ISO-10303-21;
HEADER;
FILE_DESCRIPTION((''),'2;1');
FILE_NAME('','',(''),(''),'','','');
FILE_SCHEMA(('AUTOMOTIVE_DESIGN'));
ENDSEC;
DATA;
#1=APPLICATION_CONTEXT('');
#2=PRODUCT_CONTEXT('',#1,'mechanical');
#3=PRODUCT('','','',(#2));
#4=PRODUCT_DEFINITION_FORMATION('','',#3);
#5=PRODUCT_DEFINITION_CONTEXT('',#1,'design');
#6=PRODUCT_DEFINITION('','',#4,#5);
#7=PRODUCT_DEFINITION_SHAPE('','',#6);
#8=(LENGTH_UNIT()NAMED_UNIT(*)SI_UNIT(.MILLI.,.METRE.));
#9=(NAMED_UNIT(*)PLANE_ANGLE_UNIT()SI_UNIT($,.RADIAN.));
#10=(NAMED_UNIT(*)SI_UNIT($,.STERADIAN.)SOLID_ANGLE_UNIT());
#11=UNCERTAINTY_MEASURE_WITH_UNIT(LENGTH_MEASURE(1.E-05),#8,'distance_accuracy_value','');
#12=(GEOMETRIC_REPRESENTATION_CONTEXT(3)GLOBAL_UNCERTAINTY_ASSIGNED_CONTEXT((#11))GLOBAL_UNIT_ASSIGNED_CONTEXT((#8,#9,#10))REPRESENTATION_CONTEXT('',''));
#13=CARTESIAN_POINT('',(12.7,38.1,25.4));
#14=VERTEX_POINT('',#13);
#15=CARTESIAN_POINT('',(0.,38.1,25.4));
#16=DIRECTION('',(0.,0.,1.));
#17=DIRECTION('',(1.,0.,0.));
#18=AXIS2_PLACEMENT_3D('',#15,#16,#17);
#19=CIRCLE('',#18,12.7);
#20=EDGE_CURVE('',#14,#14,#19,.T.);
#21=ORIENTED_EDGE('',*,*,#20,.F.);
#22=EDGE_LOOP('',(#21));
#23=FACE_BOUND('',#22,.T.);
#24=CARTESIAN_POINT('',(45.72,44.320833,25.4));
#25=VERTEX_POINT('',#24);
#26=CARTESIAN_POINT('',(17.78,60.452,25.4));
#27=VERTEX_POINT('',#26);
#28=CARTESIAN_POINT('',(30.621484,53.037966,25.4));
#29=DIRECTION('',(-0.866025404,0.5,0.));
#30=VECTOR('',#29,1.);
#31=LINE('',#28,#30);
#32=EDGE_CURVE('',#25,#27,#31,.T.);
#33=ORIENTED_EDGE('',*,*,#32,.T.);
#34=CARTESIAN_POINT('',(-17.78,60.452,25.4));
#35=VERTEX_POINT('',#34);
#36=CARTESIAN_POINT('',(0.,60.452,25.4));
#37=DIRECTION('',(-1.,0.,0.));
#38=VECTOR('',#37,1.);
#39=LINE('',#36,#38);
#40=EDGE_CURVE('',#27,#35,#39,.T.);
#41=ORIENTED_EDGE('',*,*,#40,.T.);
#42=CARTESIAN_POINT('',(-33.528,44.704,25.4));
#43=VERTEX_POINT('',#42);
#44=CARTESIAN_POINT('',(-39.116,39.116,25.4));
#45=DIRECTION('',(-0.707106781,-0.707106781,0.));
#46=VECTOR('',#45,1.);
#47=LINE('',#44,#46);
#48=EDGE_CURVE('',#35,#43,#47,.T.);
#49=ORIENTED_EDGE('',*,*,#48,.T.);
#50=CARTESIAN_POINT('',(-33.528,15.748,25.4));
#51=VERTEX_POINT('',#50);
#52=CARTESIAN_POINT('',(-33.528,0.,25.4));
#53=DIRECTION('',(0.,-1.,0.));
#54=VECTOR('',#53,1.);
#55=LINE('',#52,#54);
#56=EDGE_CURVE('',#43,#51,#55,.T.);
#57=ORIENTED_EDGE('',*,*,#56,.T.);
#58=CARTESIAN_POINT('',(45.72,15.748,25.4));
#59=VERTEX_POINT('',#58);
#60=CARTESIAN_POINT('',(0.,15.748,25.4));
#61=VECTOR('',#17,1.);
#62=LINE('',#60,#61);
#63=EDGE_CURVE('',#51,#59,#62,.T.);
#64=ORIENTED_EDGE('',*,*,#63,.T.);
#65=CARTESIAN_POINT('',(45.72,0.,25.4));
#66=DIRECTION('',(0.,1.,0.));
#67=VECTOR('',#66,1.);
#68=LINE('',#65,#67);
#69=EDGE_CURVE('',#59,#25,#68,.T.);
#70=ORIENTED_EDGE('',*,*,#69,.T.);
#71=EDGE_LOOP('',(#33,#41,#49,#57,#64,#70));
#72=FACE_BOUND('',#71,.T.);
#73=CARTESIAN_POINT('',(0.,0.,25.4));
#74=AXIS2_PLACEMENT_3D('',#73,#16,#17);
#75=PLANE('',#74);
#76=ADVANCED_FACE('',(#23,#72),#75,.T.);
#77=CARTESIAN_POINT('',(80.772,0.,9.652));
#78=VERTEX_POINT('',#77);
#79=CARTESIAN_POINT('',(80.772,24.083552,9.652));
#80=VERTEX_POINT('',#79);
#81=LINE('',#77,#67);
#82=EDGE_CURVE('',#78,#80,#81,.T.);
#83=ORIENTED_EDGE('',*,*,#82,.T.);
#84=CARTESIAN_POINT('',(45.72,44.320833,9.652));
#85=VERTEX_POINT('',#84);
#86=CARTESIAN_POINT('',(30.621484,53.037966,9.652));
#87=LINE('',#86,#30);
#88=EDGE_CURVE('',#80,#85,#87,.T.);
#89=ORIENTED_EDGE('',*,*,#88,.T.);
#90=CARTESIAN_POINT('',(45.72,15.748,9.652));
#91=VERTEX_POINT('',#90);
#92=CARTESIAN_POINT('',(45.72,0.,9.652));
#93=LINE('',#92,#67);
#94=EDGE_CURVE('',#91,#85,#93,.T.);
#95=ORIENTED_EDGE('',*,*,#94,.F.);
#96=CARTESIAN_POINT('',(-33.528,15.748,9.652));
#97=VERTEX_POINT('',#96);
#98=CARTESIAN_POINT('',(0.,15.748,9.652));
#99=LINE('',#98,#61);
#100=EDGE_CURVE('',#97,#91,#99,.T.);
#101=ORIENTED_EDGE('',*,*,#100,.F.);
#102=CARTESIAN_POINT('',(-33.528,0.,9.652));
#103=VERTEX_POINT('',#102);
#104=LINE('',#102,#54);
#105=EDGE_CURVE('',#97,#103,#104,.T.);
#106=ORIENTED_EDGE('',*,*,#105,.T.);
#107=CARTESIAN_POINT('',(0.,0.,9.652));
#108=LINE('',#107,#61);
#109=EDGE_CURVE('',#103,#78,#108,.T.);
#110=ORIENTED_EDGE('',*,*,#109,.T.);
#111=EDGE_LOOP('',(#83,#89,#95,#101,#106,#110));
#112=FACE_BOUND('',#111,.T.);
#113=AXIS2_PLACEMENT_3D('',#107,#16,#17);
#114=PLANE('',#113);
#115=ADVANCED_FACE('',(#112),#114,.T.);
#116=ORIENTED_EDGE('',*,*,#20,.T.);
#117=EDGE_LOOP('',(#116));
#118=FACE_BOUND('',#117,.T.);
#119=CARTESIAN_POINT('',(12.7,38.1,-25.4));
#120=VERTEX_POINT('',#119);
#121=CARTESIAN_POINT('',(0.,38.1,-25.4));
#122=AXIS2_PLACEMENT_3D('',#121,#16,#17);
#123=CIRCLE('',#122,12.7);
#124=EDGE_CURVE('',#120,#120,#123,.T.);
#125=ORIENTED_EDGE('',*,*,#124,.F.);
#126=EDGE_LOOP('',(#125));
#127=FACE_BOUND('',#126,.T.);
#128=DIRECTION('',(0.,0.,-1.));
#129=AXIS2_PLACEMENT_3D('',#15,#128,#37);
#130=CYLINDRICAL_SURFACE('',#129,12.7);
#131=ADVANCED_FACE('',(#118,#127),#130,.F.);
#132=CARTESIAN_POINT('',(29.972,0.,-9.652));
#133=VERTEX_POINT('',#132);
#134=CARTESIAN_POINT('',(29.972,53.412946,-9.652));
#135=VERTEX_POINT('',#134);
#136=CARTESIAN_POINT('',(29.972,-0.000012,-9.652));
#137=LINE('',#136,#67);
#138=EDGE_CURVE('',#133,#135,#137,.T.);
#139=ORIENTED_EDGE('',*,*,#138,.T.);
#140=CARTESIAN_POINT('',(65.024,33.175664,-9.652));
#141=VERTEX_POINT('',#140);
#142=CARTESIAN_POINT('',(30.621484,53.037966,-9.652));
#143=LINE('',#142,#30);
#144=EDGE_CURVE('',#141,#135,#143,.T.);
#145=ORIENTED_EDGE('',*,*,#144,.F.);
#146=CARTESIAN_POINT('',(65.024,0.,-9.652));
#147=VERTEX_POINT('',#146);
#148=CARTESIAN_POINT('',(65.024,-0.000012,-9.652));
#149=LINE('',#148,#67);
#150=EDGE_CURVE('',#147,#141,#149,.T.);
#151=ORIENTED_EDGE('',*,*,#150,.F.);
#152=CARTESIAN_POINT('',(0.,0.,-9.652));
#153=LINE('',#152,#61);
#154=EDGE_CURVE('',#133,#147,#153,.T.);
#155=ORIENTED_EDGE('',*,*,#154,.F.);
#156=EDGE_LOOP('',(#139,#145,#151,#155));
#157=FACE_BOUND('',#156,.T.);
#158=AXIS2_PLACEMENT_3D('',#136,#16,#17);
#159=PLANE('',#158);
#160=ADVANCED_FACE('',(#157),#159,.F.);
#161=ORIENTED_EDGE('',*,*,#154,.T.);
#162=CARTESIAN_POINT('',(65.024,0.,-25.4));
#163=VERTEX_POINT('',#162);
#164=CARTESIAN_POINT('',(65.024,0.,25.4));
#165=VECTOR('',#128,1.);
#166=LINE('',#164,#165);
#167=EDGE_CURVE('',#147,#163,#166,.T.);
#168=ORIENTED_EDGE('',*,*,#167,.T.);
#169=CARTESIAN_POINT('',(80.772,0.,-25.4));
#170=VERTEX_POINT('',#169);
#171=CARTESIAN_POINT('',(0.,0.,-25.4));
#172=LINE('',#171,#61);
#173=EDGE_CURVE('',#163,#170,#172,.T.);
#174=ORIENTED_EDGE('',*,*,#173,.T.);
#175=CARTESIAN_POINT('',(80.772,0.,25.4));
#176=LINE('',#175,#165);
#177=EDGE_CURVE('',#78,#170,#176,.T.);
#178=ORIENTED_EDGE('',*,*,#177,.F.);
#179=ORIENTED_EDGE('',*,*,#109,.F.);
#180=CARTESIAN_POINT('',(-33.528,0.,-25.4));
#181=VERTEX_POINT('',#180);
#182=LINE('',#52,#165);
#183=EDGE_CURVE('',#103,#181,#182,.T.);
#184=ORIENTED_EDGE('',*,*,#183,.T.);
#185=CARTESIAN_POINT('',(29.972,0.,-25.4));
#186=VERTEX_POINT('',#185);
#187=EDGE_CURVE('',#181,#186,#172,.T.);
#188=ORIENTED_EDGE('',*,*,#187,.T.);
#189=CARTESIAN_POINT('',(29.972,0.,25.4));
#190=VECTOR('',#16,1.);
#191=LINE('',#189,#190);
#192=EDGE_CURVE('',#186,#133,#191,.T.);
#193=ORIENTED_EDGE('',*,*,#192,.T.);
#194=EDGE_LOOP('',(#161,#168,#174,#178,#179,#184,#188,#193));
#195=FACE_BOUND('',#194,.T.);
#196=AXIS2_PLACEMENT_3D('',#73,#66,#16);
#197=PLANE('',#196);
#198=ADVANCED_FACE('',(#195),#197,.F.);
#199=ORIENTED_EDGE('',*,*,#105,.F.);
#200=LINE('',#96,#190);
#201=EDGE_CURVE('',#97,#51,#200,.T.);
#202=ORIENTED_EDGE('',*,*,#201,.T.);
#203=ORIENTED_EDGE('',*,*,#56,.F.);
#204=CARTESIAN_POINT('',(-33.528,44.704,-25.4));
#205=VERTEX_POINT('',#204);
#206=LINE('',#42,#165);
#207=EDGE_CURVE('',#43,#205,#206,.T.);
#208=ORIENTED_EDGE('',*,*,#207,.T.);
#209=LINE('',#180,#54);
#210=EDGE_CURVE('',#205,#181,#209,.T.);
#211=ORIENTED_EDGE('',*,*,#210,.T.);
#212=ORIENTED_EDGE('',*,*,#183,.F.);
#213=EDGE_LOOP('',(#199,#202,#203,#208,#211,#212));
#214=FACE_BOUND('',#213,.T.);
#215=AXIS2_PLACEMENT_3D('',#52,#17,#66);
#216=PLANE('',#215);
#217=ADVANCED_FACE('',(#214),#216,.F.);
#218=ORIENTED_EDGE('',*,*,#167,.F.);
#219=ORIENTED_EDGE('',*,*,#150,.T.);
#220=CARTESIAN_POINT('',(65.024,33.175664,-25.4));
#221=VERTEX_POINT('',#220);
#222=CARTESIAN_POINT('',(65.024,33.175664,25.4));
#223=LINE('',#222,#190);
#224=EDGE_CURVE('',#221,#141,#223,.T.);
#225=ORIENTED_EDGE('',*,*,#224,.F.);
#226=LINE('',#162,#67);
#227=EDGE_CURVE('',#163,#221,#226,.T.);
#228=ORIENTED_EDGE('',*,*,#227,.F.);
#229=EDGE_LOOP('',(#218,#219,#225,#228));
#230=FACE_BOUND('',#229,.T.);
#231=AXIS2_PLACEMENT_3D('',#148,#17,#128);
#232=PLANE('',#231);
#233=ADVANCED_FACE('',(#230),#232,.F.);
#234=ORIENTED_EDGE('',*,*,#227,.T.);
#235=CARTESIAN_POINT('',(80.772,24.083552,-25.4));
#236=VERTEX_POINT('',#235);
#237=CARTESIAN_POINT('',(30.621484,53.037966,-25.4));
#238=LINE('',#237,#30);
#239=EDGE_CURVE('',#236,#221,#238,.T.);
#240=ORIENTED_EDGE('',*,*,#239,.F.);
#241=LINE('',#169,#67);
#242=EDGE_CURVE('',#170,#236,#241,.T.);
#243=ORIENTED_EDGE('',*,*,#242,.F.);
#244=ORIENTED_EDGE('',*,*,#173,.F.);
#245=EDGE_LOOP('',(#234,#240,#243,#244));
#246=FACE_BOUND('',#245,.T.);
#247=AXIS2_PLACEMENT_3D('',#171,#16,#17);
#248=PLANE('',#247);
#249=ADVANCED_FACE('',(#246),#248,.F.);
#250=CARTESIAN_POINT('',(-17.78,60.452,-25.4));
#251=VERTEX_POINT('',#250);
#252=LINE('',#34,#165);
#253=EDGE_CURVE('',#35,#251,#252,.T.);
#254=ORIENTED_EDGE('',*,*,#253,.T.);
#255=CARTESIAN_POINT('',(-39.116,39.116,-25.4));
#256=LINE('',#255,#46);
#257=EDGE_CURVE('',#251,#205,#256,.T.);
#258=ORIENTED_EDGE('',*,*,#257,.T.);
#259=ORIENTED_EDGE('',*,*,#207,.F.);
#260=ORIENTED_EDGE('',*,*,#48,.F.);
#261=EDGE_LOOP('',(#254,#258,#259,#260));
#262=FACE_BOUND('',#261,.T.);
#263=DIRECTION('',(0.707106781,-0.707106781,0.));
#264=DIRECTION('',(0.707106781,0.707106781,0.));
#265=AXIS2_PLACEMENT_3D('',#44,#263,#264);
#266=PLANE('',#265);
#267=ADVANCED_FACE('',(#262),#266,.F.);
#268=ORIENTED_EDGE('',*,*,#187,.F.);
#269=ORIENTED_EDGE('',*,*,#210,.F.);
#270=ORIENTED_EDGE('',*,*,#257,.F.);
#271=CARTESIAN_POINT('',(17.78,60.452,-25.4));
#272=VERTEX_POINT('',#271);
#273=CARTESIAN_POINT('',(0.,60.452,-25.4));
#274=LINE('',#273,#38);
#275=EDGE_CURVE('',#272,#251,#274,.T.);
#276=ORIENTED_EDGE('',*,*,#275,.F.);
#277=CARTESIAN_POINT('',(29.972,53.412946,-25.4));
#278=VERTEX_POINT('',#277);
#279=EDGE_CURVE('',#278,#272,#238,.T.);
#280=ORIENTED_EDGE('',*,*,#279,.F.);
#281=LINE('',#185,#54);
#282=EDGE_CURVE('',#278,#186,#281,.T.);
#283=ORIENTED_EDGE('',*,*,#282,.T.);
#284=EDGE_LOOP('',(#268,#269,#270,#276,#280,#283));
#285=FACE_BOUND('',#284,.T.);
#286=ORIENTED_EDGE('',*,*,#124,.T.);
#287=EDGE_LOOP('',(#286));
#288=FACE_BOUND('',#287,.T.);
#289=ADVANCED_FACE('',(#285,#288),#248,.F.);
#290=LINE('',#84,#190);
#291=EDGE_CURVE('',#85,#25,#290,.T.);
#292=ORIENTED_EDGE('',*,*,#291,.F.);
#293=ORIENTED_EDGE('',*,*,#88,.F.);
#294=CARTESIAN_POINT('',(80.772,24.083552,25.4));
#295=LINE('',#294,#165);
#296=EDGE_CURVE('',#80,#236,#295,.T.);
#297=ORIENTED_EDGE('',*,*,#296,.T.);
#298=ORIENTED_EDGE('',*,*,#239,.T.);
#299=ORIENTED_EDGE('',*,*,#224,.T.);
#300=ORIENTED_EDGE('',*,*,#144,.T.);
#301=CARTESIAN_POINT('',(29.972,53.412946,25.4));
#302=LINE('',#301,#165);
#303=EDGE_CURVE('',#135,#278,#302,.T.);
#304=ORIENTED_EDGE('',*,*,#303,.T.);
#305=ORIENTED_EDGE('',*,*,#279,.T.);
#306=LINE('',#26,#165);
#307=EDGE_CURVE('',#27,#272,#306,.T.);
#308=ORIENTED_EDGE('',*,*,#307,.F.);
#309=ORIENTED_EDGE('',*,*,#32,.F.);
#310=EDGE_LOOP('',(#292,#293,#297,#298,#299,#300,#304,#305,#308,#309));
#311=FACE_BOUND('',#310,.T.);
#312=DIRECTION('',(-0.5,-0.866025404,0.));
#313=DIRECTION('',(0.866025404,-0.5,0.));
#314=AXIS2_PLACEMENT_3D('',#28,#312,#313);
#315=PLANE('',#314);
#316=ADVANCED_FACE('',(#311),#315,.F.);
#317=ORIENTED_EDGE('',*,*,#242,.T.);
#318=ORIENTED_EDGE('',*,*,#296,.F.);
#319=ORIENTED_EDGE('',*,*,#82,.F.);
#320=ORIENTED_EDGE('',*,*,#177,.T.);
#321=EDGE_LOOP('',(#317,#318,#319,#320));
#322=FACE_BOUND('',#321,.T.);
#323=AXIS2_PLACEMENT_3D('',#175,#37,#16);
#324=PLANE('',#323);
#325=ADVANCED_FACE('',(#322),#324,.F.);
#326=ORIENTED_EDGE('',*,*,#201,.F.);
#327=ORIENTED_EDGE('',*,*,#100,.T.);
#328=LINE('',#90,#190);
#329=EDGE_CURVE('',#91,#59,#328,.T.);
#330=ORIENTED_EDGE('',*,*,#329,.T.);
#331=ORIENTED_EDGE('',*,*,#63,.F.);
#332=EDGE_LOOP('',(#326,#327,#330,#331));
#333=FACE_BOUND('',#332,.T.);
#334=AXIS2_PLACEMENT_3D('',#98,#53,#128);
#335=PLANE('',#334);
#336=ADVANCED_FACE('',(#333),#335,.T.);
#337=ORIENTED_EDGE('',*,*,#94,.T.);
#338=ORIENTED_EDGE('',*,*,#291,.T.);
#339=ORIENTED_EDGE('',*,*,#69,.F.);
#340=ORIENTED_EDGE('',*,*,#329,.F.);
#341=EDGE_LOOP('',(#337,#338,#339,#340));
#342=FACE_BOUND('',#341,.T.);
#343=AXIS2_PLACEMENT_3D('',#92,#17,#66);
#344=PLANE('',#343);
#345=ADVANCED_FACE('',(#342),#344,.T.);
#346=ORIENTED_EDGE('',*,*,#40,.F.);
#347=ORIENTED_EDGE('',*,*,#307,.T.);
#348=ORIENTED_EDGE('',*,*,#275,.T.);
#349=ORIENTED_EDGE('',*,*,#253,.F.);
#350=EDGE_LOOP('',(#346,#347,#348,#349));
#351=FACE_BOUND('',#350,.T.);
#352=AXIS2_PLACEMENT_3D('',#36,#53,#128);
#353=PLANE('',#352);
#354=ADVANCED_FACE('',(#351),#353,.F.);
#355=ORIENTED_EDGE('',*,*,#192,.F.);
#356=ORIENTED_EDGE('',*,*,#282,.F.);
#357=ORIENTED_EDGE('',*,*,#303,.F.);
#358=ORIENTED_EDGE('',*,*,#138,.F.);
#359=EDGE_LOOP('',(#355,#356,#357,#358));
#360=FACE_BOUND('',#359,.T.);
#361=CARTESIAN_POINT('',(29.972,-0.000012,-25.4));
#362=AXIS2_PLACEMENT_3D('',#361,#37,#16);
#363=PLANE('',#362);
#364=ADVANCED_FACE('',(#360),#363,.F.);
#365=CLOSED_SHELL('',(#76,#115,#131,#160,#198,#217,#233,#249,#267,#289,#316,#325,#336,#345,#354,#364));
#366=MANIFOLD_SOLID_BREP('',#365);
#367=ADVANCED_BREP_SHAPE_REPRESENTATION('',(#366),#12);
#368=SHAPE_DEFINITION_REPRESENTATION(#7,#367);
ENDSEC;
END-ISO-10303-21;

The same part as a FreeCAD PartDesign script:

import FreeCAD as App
import Part
import Sketcher
Q = App.Units.Quantity

doc = App.newDocument("Part")
body = doc.addObject("PartDesign::Body", "Body")

# Sketch on XY plane
sketch1 = body.newObject("Sketcher::SketchObject", "Sketch")
sketch1.AttachmentSupport = (doc.getObject("XY_Plane"), [""])
sketch1.MapMode = "FlatFace"
sketch1.addGeometry([
    Part.LineSegment(App.Vector(-33.528, 44.704, 0), App.Vector(-33.528, 0, 0)),  # 0
    Part.LineSegment(App.Vector(-33.528, 0, 0), App.Vector(80.772, 0, 0)),  # 1
    Part.LineSegment(App.Vector(80.772, 0, 0), App.Vector(80.772, 24.083552, 0)),  # 2
    Part.LineSegment(App.Vector(80.772, 24.083552, 0), App.Vector(45.72, 44.320833, 0)),  # 3
    Part.LineSegment(App.Vector(45.72, 44.320833, 0), App.Vector(17.78, 60.452, 0)),  # 4
    Part.LineSegment(App.Vector(17.78, 60.452, 0), App.Vector(-17.78, 60.452, 0)),  # 5
    Part.LineSegment(App.Vector(-17.78, 60.452, 0), App.Vector(-33.528, 44.704, 0)),  # 6
    Part.Circle(App.Vector(0, 38.1, 0), App.Vector(0, 0, 1), 12.7),  # 7
], False)
sketch1.addConstraint([
    Sketcher.Constraint("Coincident", 0, 2, 1, 1),
    Sketcher.Constraint("Coincident", 1, 2, 2, 1),
    Sketcher.Constraint("Coincident", 2, 2, 3, 1),
    Sketcher.Constraint("Coincident", 3, 2, 4, 1),
    Sketcher.Constraint("Coincident", 4, 2, 5, 1),
    Sketcher.Constraint("Coincident", 5, 2, 6, 1),
    Sketcher.Constraint("Coincident", 6, 2, 0, 1),
    Sketcher.Constraint("Vertical", 0),
    Sketcher.Constraint("Horizontal", 1),
    Sketcher.Constraint("Vertical", 2),
    Sketcher.Constraint("Horizontal", 5),
    Sketcher.Constraint("PointOnObject", 7, 3, -2),
    Sketcher.Constraint("PointOnObject", 0, 2, -1),
    Sketcher.Constraint("Parallel", 3, 4),
    Sketcher.Constraint("Diameter", 7, Q("1 in")),
    Sketcher.Constraint("DistanceX", 1, 1, 1, 2, Q("4.5 in")),
    Sketcher.Constraint("DistanceX", 5, 2, 5, 1, Q("1.4 in")),
    Sketcher.Constraint("Angle", 3, Q("150 deg")),
    Sketcher.Constraint("Angle", 6, Q("-135 deg")),
    Sketcher.Constraint("DistanceY", 0, 2, 0, 1, Q("1.76 in")),
    Sketcher.Constraint("DistanceY", -1, 1, 7, 3, Q("1.5 in")),
    Sketcher.Constraint("DistanceX", -1, 1, 3, 2, Q("1.8 in")),
    Sketcher.Constraint("DistanceX", -1, 1, 4, 2, Q("0.7 in")),
    Sketcher.Constraint("DistanceX", 0, 2, -1, 1, Q("1.32 in")),
])
pad1 = body.newObject("PartDesign::Pad", "Pad")
pad1.Profile = sketch1
pad1.Length = Q("2 in")
pad1.Midplane = True

# Sketch on XY plane
sketch2 = body.newObject("Sketcher::SketchObject", "Sketch001")
sketch2.AttachmentSupport = (doc.getObject("XY_Plane"), [""])
sketch2.MapMode = "FlatFace"
sketch2.AttachmentOffset = App.Placement(App.Vector(0, 0, 1 * 25.4), App.Rotation())
sketch2.addGeometry([
    Part.LineSegment(App.Vector(-33.528, 15.748, 0), App.Vector(-33.528, 0, 0)),  # 0
    Part.LineSegment(App.Vector(-33.528, 0, 0), App.Vector(80.772, 0, 0)),  # 1
    Part.LineSegment(App.Vector(80.772, 0, 0), App.Vector(80.772, 24.083552, 0)),  # 2
    Part.LineSegment(App.Vector(80.772, 24.083552, 0), App.Vector(45.72, 44.320833, 0)),  # 3
    Part.LineSegment(App.Vector(45.72, 44.320833, 0), App.Vector(45.72, 15.748, 0)),  # 4
    Part.LineSegment(App.Vector(45.72, 15.748, 0), App.Vector(-33.528, 15.748, 0)),  # 5
], False)
sketch2.addConstraint([
    Sketcher.Constraint("Coincident", 0, 2, 1, 1),
    Sketcher.Constraint("Coincident", 1, 2, 2, 1),
    Sketcher.Constraint("Coincident", 2, 2, 3, 1),
    Sketcher.Constraint("Coincident", 3, 2, 4, 1),
    Sketcher.Constraint("Coincident", 4, 2, 5, 1),
    Sketcher.Constraint("Coincident", 5, 2, 0, 1),
    Sketcher.Constraint("Vertical", 0),
    Sketcher.Constraint("Horizontal", 1),
    Sketcher.Constraint("Vertical", 2),
    Sketcher.Constraint("Vertical", 4),
    Sketcher.Constraint("Horizontal", 5),
    Sketcher.Constraint("PointOnObject", 0, 2, -1),
    Sketcher.Constraint("DistanceX", 1, 1, 1, 2, Q("4.5 in")),
    Sketcher.Constraint("Angle", 3, Q("150 deg")),
    Sketcher.Constraint("DistanceX", 5, 2, 5, 1, Q("3.12 in")),
    Sketcher.Constraint("DistanceY", 0, 2, 0, 1, Q("0.62 in")),
    Sketcher.Constraint("DistanceX", -1, 1, 3, 2, Q("1.8 in")),
    Sketcher.Constraint("DistanceY", 2, 1, 2, 2, Q("24.083552 mm")),
])
pocket1 = body.newObject("PartDesign::Pocket", "Pocket")
pocket1.Profile = sketch2
pocket1.Length = Q("0.62 in")

# Sketch on XZ plane
sketch3 = body.newObject("Sketcher::SketchObject", "Sketch002")
sketch3.AttachmentSupport = (doc.getObject("XZ_Plane"), [""])
sketch3.MapMode = "FlatFace"
sketch3.addGeometry([
    Part.LineSegment(App.Vector(29.972, -25.4, 0), App.Vector(29.972, -9.652, 0)),
    Part.LineSegment(App.Vector(29.972, -9.652, 0), App.Vector(65.024, -9.652, 0)),
    Part.LineSegment(App.Vector(65.024, -9.652, 0), App.Vector(65.024, -25.4, 0)),
    Part.LineSegment(App.Vector(65.024, -25.4, 0), App.Vector(29.972, -25.4, 0)),
], False)
sketch3.addConstraint([
    Sketcher.Constraint("Coincident", 0, 2, 1, 1),
    Sketcher.Constraint("Coincident", 1, 2, 2, 1),
    Sketcher.Constraint("Coincident", 2, 2, 3, 1),
    Sketcher.Constraint("Coincident", 3, 2, 0, 1),
    Sketcher.Constraint("Vertical", 0),
    Sketcher.Constraint("Horizontal", 1),
    Sketcher.Constraint("Vertical", 2),
    Sketcher.Constraint("Horizontal", 3),
    Sketcher.Constraint("DistanceY", 2, 2, -1, 1, Q("1 in")),
    Sketcher.Constraint("DistanceX", 1, 1, 1, 2, Q("1.38 in")),
    Sketcher.Constraint("DistanceY", 0, 1, 0, 2, Q("0.62 in")),
    Sketcher.Constraint("DistanceX", -1, 1, 0, 2, Q("1.18 in")),
])
pocket2 = body.newObject("PartDesign::Pocket", "Pocket001")
pocket2.Profile = sketch3
pocket2.Type = "ThroughAll"
pocket2.Midplane = True

doc.recompute()
